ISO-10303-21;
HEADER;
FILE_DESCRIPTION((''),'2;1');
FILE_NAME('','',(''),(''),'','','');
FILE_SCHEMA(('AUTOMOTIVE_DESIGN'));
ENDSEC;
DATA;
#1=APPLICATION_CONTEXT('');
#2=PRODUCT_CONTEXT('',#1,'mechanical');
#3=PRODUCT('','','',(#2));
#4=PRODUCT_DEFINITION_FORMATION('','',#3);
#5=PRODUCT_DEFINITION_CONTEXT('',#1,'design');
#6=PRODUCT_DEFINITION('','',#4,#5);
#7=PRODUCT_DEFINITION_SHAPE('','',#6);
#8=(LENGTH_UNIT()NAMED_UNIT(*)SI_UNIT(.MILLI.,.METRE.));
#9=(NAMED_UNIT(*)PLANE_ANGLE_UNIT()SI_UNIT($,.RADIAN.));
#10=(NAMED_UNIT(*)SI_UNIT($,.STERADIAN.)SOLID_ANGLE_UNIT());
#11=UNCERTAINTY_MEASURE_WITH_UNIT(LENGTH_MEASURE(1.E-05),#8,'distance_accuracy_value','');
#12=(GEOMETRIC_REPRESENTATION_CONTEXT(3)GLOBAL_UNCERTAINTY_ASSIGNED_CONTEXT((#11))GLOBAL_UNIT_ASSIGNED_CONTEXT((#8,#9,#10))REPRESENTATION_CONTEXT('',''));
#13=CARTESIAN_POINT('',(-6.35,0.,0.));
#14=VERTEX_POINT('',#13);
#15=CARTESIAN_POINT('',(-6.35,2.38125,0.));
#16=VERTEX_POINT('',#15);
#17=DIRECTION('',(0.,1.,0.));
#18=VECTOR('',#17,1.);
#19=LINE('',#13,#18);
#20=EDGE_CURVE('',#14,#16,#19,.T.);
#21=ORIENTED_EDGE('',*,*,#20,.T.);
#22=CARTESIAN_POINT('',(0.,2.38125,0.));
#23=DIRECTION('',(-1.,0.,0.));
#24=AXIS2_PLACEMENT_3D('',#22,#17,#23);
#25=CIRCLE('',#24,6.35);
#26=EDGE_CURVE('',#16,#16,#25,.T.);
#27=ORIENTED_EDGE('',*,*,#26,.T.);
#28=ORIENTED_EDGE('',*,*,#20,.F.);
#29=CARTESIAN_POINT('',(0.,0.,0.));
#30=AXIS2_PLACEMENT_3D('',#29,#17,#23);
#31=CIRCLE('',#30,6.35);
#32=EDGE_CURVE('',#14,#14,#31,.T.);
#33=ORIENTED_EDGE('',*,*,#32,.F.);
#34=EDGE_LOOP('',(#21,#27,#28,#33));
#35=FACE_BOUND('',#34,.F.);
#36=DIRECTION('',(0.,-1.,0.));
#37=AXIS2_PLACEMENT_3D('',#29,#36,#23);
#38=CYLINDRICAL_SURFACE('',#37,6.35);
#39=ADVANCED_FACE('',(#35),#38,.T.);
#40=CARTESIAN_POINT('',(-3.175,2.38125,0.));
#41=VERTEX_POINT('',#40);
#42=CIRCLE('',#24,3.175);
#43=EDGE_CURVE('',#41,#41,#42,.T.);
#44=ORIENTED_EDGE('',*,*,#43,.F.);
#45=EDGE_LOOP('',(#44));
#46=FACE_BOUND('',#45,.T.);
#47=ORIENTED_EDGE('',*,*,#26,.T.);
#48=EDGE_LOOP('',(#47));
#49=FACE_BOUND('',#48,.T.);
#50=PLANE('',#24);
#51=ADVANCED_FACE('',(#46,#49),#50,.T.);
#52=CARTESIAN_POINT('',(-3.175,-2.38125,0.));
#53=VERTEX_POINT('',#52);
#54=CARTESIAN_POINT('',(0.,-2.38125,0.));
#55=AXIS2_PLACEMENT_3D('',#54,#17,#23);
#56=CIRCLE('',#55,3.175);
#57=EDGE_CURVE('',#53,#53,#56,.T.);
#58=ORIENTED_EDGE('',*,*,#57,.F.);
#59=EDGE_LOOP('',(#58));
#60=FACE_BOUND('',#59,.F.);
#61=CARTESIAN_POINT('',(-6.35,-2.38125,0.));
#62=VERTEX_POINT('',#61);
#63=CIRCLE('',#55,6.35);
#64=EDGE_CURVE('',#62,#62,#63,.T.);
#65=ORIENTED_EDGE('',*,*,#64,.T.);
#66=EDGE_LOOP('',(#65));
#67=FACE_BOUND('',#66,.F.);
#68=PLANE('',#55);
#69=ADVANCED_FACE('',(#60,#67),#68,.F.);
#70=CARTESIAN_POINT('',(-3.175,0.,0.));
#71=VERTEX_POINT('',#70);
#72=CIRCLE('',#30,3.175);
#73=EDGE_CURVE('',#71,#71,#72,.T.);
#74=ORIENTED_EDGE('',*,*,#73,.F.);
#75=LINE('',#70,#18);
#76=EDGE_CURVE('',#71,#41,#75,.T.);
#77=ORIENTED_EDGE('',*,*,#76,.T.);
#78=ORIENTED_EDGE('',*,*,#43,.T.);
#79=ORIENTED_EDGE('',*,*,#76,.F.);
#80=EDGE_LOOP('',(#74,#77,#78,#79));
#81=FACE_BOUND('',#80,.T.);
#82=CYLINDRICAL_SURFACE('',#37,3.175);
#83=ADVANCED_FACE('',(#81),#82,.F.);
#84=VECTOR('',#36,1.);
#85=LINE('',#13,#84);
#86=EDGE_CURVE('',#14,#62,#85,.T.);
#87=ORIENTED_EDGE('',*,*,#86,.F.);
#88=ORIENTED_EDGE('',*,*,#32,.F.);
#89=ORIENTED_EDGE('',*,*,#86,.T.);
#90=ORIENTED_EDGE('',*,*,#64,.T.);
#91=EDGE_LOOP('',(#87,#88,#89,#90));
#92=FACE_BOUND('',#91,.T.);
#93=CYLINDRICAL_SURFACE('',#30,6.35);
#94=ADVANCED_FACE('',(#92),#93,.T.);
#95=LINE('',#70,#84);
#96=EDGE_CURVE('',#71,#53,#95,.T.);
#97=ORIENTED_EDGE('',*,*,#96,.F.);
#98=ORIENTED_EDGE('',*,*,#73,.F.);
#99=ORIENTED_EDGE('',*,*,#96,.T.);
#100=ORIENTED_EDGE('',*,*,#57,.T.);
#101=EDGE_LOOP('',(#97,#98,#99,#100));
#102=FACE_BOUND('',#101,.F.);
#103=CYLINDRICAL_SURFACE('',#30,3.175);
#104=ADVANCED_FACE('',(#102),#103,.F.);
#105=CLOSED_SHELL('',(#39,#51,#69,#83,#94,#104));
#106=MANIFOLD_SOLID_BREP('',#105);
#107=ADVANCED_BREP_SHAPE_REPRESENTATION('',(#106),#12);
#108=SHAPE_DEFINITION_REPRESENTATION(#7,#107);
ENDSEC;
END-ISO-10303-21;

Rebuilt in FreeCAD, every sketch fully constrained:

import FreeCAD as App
import Part
import Sketcher

V = App.Vector
Q = App.Units.Quantity

doc = App.newDocument("Part")
body = doc.addObject("PartDesign::Body", "Body")

# Sketch on XZ plane
sketch1 = body.newObject("Sketcher::SketchObject", "Sketch")
sketch1.AttachmentSupport = (doc.getObject("XZ_Plane"), [""])
sketch1.MapMode = "FlatFace"
sketch1.addGeometry([
    Part.Circle(V(0, 0, 0), V(0, 0, 1), 6.3),
    Part.Circle(V(0, 0, 0), V(0, 0, 1), 3.2),
], False)
sketch1.addConstraint([
    Sketcher.Constraint("Coincident", 0, 3, -1, 1),
    Sketcher.Constraint("Coincident", 1, 3, -1, 1),
    Sketcher.Constraint("Diameter", 0, Q("0.5 in")),
    Sketcher.Constraint("Diameter", 1, Q("0.25 in")),
])
pad1 = body.newObject("PartDesign::Pad", "Pad")
pad1.Profile = sketch1
pad1.Length = Q("0.1875 in")
pad1.Midplane = True

doc.recompute()
